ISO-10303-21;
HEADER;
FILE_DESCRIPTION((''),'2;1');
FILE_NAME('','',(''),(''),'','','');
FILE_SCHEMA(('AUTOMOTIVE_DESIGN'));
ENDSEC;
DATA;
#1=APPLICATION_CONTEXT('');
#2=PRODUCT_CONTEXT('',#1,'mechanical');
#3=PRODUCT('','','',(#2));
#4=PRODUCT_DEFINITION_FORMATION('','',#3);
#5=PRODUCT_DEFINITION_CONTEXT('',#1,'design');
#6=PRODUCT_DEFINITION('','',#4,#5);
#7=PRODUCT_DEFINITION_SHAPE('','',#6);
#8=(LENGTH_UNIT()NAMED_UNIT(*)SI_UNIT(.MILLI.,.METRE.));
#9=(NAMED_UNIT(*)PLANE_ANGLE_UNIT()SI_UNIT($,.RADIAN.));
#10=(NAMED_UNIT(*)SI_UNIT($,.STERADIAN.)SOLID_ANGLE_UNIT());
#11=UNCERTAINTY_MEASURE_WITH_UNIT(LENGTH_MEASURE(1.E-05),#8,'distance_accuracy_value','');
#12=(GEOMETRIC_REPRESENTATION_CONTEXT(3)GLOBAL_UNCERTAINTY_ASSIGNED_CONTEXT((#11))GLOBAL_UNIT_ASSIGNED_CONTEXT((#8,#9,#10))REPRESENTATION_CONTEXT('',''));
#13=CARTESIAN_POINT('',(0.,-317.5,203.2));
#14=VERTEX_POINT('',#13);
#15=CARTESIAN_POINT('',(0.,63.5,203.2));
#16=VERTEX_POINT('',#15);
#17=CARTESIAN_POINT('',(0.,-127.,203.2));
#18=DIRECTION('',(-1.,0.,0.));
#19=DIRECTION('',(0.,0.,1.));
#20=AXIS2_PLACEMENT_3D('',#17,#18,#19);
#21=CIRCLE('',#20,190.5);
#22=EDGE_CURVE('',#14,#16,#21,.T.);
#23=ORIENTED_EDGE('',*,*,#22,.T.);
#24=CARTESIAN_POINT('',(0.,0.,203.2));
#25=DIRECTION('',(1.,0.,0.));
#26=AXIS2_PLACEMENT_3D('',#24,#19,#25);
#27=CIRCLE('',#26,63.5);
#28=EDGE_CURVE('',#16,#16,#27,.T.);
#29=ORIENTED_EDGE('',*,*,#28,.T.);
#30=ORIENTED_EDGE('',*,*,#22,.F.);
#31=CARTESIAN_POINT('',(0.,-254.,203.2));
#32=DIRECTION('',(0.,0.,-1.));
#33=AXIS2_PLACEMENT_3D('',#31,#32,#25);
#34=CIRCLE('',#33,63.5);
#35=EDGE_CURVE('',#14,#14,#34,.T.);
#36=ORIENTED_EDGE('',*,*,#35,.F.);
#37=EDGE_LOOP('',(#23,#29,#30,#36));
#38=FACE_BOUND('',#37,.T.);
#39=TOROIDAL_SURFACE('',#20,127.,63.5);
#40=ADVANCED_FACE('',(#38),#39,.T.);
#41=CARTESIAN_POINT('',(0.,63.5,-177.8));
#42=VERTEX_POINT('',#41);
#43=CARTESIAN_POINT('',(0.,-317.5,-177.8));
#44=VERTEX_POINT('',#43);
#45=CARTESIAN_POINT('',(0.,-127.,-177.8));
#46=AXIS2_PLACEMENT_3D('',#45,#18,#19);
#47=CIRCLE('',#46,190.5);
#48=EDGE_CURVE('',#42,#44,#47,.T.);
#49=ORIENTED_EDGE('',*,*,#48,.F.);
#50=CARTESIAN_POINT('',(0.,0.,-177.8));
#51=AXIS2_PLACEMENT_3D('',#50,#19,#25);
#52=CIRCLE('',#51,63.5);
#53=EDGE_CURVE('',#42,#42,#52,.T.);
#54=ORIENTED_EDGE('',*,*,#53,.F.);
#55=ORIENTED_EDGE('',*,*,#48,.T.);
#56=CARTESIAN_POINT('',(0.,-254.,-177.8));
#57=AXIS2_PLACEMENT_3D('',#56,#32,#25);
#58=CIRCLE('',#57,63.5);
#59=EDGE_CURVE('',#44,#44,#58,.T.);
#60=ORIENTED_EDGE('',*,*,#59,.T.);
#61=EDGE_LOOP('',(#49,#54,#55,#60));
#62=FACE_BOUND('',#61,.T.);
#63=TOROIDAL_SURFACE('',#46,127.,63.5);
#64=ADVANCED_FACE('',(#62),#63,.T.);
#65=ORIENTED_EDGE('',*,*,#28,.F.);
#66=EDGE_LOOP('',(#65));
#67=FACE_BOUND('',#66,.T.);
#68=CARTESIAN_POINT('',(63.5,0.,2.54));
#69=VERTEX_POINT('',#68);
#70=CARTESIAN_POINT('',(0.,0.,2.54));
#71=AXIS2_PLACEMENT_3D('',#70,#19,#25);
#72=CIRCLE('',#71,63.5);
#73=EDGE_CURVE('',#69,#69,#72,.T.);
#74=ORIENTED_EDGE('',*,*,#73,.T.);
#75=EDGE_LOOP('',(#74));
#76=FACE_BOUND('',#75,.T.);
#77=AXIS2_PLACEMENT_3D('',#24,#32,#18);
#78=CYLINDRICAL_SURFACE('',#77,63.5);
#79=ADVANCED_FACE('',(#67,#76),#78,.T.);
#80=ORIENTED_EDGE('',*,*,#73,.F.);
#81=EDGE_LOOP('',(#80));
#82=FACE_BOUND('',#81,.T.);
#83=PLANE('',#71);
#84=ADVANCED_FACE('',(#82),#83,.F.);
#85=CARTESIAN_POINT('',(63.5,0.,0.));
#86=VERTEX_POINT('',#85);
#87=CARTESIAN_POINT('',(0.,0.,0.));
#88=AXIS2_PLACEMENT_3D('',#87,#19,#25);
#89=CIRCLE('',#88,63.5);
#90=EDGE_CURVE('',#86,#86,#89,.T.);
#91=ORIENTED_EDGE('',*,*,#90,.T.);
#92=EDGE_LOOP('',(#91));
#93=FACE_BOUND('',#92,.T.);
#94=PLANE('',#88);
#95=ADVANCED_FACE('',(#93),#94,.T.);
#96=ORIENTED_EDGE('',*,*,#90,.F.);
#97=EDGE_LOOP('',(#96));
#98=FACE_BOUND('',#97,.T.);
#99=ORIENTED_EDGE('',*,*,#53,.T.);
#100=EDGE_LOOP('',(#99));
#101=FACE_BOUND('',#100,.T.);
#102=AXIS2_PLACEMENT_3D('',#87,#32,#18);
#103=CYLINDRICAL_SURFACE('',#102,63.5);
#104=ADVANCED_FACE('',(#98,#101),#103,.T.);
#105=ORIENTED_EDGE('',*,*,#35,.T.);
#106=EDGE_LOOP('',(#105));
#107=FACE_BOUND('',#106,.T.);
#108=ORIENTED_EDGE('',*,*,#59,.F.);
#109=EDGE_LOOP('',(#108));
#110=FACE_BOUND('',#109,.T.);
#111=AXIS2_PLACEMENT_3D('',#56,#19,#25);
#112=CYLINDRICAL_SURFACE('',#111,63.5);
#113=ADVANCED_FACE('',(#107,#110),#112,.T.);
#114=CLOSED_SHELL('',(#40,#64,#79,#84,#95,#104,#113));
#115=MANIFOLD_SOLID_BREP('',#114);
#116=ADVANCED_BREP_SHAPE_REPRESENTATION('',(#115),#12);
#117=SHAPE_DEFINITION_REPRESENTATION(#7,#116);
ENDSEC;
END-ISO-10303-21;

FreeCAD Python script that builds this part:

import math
import FreeCAD as App
import Part
import Sketcher
from FreeCAD import Vector
Q = App.Units.Quantity

doc = App.newDocument("Part")
body = doc.addObject("PartDesign::Body", "Body")

# Sketch on XY plane
sketch1 = doc.addObject("Sketcher::SketchObject", "Sketch")
body.addObject(sketch1)
sketch1.AttachmentSupport = (doc.XY_Plane, [""])
sketch1.MapMode = "FlatFace"
sketch1.addGeometry(Part.Circle(Vector(0, 0, 0), Vector(0, 0, 1), 64), False)
sketch1.addConstraint([
    Sketcher.Constraint("Coincident", 0, 3, -1, 1),
    Sketcher.Constraint("Diameter", 0, Q("5 in")),
])

# Sketch on YZ plane
sketch2 = doc.addObject("Sketcher::SketchObject", "Sketch001")
body.addObject(sketch2)
sketch2.AttachmentSupport = (doc.YZ_Plane, [""])
sketch2.MapMode = "FlatFace"
sketch2.addGeometry([
    Part.LineSegment(Vector(0, 0, 0), Vector(0, -178, 0)),  # 0
    Part.ArcOfCircle(Part.Circle(Vector(-127, -178, 0), Vector(0, 0, 1), 127), math.radians(180), math.radians(360)),  # 1
    Part.LineSegment(Vector(-254, -178, 0), Vector(-254, 203, 0)),  # 2
    Part.ArcOfCircle(Part.Circle(Vector(-127, 203, 0), Vector(0, 0, 1), 127), math.radians(0), math.radians(180)),  # 3
    Part.LineSegment(Vector(0, 203, 0), Vector(0, 3, 0)),  # 4
], False)
sketch2.addConstraint([
    Sketcher.Constraint("Tangent", 0, 2, 1, 2),
    Sketcher.Constraint("Tangent", 1, 1, 2, 1),
    Sketcher.Constraint("Tangent", 2, 2, 3, 2),
    Sketcher.Constraint("Tangent", 3, 1, 4, 1),
    Sketcher.Constraint("Vertical", 0),
    Sketcher.Constraint("Vertical", 2),
    Sketcher.Constraint("Vertical", 4),
    Sketcher.Constraint("Coincident", 0, 1, -1, 1),
    Sketcher.Constraint("Equal", 1, 3),
    Sketcher.Constraint("Radius", 1, Q("5 in")),
    Sketcher.Constraint("DistanceY", 0, 2, 0, 1, Q("7 in")),
    Sketcher.Constraint("DistanceY", 2, 1, 2, 2, Q("15 in")),
    Sketcher.Constraint("DistanceY", 4, 2, 4, 1, Q("7.9 in")),
])
doc.recompute()

additivepipe = doc.addObject("PartDesign::AdditivePipe", "AdditivePipe")
body.addObject(additivepipe)
additivepipe.Profile = sketch1
additivepipe.Spine = (sketch2, ["Edge1", "Edge2", "Edge3", "Edge4", "Edge5"])

doc.recompute()
